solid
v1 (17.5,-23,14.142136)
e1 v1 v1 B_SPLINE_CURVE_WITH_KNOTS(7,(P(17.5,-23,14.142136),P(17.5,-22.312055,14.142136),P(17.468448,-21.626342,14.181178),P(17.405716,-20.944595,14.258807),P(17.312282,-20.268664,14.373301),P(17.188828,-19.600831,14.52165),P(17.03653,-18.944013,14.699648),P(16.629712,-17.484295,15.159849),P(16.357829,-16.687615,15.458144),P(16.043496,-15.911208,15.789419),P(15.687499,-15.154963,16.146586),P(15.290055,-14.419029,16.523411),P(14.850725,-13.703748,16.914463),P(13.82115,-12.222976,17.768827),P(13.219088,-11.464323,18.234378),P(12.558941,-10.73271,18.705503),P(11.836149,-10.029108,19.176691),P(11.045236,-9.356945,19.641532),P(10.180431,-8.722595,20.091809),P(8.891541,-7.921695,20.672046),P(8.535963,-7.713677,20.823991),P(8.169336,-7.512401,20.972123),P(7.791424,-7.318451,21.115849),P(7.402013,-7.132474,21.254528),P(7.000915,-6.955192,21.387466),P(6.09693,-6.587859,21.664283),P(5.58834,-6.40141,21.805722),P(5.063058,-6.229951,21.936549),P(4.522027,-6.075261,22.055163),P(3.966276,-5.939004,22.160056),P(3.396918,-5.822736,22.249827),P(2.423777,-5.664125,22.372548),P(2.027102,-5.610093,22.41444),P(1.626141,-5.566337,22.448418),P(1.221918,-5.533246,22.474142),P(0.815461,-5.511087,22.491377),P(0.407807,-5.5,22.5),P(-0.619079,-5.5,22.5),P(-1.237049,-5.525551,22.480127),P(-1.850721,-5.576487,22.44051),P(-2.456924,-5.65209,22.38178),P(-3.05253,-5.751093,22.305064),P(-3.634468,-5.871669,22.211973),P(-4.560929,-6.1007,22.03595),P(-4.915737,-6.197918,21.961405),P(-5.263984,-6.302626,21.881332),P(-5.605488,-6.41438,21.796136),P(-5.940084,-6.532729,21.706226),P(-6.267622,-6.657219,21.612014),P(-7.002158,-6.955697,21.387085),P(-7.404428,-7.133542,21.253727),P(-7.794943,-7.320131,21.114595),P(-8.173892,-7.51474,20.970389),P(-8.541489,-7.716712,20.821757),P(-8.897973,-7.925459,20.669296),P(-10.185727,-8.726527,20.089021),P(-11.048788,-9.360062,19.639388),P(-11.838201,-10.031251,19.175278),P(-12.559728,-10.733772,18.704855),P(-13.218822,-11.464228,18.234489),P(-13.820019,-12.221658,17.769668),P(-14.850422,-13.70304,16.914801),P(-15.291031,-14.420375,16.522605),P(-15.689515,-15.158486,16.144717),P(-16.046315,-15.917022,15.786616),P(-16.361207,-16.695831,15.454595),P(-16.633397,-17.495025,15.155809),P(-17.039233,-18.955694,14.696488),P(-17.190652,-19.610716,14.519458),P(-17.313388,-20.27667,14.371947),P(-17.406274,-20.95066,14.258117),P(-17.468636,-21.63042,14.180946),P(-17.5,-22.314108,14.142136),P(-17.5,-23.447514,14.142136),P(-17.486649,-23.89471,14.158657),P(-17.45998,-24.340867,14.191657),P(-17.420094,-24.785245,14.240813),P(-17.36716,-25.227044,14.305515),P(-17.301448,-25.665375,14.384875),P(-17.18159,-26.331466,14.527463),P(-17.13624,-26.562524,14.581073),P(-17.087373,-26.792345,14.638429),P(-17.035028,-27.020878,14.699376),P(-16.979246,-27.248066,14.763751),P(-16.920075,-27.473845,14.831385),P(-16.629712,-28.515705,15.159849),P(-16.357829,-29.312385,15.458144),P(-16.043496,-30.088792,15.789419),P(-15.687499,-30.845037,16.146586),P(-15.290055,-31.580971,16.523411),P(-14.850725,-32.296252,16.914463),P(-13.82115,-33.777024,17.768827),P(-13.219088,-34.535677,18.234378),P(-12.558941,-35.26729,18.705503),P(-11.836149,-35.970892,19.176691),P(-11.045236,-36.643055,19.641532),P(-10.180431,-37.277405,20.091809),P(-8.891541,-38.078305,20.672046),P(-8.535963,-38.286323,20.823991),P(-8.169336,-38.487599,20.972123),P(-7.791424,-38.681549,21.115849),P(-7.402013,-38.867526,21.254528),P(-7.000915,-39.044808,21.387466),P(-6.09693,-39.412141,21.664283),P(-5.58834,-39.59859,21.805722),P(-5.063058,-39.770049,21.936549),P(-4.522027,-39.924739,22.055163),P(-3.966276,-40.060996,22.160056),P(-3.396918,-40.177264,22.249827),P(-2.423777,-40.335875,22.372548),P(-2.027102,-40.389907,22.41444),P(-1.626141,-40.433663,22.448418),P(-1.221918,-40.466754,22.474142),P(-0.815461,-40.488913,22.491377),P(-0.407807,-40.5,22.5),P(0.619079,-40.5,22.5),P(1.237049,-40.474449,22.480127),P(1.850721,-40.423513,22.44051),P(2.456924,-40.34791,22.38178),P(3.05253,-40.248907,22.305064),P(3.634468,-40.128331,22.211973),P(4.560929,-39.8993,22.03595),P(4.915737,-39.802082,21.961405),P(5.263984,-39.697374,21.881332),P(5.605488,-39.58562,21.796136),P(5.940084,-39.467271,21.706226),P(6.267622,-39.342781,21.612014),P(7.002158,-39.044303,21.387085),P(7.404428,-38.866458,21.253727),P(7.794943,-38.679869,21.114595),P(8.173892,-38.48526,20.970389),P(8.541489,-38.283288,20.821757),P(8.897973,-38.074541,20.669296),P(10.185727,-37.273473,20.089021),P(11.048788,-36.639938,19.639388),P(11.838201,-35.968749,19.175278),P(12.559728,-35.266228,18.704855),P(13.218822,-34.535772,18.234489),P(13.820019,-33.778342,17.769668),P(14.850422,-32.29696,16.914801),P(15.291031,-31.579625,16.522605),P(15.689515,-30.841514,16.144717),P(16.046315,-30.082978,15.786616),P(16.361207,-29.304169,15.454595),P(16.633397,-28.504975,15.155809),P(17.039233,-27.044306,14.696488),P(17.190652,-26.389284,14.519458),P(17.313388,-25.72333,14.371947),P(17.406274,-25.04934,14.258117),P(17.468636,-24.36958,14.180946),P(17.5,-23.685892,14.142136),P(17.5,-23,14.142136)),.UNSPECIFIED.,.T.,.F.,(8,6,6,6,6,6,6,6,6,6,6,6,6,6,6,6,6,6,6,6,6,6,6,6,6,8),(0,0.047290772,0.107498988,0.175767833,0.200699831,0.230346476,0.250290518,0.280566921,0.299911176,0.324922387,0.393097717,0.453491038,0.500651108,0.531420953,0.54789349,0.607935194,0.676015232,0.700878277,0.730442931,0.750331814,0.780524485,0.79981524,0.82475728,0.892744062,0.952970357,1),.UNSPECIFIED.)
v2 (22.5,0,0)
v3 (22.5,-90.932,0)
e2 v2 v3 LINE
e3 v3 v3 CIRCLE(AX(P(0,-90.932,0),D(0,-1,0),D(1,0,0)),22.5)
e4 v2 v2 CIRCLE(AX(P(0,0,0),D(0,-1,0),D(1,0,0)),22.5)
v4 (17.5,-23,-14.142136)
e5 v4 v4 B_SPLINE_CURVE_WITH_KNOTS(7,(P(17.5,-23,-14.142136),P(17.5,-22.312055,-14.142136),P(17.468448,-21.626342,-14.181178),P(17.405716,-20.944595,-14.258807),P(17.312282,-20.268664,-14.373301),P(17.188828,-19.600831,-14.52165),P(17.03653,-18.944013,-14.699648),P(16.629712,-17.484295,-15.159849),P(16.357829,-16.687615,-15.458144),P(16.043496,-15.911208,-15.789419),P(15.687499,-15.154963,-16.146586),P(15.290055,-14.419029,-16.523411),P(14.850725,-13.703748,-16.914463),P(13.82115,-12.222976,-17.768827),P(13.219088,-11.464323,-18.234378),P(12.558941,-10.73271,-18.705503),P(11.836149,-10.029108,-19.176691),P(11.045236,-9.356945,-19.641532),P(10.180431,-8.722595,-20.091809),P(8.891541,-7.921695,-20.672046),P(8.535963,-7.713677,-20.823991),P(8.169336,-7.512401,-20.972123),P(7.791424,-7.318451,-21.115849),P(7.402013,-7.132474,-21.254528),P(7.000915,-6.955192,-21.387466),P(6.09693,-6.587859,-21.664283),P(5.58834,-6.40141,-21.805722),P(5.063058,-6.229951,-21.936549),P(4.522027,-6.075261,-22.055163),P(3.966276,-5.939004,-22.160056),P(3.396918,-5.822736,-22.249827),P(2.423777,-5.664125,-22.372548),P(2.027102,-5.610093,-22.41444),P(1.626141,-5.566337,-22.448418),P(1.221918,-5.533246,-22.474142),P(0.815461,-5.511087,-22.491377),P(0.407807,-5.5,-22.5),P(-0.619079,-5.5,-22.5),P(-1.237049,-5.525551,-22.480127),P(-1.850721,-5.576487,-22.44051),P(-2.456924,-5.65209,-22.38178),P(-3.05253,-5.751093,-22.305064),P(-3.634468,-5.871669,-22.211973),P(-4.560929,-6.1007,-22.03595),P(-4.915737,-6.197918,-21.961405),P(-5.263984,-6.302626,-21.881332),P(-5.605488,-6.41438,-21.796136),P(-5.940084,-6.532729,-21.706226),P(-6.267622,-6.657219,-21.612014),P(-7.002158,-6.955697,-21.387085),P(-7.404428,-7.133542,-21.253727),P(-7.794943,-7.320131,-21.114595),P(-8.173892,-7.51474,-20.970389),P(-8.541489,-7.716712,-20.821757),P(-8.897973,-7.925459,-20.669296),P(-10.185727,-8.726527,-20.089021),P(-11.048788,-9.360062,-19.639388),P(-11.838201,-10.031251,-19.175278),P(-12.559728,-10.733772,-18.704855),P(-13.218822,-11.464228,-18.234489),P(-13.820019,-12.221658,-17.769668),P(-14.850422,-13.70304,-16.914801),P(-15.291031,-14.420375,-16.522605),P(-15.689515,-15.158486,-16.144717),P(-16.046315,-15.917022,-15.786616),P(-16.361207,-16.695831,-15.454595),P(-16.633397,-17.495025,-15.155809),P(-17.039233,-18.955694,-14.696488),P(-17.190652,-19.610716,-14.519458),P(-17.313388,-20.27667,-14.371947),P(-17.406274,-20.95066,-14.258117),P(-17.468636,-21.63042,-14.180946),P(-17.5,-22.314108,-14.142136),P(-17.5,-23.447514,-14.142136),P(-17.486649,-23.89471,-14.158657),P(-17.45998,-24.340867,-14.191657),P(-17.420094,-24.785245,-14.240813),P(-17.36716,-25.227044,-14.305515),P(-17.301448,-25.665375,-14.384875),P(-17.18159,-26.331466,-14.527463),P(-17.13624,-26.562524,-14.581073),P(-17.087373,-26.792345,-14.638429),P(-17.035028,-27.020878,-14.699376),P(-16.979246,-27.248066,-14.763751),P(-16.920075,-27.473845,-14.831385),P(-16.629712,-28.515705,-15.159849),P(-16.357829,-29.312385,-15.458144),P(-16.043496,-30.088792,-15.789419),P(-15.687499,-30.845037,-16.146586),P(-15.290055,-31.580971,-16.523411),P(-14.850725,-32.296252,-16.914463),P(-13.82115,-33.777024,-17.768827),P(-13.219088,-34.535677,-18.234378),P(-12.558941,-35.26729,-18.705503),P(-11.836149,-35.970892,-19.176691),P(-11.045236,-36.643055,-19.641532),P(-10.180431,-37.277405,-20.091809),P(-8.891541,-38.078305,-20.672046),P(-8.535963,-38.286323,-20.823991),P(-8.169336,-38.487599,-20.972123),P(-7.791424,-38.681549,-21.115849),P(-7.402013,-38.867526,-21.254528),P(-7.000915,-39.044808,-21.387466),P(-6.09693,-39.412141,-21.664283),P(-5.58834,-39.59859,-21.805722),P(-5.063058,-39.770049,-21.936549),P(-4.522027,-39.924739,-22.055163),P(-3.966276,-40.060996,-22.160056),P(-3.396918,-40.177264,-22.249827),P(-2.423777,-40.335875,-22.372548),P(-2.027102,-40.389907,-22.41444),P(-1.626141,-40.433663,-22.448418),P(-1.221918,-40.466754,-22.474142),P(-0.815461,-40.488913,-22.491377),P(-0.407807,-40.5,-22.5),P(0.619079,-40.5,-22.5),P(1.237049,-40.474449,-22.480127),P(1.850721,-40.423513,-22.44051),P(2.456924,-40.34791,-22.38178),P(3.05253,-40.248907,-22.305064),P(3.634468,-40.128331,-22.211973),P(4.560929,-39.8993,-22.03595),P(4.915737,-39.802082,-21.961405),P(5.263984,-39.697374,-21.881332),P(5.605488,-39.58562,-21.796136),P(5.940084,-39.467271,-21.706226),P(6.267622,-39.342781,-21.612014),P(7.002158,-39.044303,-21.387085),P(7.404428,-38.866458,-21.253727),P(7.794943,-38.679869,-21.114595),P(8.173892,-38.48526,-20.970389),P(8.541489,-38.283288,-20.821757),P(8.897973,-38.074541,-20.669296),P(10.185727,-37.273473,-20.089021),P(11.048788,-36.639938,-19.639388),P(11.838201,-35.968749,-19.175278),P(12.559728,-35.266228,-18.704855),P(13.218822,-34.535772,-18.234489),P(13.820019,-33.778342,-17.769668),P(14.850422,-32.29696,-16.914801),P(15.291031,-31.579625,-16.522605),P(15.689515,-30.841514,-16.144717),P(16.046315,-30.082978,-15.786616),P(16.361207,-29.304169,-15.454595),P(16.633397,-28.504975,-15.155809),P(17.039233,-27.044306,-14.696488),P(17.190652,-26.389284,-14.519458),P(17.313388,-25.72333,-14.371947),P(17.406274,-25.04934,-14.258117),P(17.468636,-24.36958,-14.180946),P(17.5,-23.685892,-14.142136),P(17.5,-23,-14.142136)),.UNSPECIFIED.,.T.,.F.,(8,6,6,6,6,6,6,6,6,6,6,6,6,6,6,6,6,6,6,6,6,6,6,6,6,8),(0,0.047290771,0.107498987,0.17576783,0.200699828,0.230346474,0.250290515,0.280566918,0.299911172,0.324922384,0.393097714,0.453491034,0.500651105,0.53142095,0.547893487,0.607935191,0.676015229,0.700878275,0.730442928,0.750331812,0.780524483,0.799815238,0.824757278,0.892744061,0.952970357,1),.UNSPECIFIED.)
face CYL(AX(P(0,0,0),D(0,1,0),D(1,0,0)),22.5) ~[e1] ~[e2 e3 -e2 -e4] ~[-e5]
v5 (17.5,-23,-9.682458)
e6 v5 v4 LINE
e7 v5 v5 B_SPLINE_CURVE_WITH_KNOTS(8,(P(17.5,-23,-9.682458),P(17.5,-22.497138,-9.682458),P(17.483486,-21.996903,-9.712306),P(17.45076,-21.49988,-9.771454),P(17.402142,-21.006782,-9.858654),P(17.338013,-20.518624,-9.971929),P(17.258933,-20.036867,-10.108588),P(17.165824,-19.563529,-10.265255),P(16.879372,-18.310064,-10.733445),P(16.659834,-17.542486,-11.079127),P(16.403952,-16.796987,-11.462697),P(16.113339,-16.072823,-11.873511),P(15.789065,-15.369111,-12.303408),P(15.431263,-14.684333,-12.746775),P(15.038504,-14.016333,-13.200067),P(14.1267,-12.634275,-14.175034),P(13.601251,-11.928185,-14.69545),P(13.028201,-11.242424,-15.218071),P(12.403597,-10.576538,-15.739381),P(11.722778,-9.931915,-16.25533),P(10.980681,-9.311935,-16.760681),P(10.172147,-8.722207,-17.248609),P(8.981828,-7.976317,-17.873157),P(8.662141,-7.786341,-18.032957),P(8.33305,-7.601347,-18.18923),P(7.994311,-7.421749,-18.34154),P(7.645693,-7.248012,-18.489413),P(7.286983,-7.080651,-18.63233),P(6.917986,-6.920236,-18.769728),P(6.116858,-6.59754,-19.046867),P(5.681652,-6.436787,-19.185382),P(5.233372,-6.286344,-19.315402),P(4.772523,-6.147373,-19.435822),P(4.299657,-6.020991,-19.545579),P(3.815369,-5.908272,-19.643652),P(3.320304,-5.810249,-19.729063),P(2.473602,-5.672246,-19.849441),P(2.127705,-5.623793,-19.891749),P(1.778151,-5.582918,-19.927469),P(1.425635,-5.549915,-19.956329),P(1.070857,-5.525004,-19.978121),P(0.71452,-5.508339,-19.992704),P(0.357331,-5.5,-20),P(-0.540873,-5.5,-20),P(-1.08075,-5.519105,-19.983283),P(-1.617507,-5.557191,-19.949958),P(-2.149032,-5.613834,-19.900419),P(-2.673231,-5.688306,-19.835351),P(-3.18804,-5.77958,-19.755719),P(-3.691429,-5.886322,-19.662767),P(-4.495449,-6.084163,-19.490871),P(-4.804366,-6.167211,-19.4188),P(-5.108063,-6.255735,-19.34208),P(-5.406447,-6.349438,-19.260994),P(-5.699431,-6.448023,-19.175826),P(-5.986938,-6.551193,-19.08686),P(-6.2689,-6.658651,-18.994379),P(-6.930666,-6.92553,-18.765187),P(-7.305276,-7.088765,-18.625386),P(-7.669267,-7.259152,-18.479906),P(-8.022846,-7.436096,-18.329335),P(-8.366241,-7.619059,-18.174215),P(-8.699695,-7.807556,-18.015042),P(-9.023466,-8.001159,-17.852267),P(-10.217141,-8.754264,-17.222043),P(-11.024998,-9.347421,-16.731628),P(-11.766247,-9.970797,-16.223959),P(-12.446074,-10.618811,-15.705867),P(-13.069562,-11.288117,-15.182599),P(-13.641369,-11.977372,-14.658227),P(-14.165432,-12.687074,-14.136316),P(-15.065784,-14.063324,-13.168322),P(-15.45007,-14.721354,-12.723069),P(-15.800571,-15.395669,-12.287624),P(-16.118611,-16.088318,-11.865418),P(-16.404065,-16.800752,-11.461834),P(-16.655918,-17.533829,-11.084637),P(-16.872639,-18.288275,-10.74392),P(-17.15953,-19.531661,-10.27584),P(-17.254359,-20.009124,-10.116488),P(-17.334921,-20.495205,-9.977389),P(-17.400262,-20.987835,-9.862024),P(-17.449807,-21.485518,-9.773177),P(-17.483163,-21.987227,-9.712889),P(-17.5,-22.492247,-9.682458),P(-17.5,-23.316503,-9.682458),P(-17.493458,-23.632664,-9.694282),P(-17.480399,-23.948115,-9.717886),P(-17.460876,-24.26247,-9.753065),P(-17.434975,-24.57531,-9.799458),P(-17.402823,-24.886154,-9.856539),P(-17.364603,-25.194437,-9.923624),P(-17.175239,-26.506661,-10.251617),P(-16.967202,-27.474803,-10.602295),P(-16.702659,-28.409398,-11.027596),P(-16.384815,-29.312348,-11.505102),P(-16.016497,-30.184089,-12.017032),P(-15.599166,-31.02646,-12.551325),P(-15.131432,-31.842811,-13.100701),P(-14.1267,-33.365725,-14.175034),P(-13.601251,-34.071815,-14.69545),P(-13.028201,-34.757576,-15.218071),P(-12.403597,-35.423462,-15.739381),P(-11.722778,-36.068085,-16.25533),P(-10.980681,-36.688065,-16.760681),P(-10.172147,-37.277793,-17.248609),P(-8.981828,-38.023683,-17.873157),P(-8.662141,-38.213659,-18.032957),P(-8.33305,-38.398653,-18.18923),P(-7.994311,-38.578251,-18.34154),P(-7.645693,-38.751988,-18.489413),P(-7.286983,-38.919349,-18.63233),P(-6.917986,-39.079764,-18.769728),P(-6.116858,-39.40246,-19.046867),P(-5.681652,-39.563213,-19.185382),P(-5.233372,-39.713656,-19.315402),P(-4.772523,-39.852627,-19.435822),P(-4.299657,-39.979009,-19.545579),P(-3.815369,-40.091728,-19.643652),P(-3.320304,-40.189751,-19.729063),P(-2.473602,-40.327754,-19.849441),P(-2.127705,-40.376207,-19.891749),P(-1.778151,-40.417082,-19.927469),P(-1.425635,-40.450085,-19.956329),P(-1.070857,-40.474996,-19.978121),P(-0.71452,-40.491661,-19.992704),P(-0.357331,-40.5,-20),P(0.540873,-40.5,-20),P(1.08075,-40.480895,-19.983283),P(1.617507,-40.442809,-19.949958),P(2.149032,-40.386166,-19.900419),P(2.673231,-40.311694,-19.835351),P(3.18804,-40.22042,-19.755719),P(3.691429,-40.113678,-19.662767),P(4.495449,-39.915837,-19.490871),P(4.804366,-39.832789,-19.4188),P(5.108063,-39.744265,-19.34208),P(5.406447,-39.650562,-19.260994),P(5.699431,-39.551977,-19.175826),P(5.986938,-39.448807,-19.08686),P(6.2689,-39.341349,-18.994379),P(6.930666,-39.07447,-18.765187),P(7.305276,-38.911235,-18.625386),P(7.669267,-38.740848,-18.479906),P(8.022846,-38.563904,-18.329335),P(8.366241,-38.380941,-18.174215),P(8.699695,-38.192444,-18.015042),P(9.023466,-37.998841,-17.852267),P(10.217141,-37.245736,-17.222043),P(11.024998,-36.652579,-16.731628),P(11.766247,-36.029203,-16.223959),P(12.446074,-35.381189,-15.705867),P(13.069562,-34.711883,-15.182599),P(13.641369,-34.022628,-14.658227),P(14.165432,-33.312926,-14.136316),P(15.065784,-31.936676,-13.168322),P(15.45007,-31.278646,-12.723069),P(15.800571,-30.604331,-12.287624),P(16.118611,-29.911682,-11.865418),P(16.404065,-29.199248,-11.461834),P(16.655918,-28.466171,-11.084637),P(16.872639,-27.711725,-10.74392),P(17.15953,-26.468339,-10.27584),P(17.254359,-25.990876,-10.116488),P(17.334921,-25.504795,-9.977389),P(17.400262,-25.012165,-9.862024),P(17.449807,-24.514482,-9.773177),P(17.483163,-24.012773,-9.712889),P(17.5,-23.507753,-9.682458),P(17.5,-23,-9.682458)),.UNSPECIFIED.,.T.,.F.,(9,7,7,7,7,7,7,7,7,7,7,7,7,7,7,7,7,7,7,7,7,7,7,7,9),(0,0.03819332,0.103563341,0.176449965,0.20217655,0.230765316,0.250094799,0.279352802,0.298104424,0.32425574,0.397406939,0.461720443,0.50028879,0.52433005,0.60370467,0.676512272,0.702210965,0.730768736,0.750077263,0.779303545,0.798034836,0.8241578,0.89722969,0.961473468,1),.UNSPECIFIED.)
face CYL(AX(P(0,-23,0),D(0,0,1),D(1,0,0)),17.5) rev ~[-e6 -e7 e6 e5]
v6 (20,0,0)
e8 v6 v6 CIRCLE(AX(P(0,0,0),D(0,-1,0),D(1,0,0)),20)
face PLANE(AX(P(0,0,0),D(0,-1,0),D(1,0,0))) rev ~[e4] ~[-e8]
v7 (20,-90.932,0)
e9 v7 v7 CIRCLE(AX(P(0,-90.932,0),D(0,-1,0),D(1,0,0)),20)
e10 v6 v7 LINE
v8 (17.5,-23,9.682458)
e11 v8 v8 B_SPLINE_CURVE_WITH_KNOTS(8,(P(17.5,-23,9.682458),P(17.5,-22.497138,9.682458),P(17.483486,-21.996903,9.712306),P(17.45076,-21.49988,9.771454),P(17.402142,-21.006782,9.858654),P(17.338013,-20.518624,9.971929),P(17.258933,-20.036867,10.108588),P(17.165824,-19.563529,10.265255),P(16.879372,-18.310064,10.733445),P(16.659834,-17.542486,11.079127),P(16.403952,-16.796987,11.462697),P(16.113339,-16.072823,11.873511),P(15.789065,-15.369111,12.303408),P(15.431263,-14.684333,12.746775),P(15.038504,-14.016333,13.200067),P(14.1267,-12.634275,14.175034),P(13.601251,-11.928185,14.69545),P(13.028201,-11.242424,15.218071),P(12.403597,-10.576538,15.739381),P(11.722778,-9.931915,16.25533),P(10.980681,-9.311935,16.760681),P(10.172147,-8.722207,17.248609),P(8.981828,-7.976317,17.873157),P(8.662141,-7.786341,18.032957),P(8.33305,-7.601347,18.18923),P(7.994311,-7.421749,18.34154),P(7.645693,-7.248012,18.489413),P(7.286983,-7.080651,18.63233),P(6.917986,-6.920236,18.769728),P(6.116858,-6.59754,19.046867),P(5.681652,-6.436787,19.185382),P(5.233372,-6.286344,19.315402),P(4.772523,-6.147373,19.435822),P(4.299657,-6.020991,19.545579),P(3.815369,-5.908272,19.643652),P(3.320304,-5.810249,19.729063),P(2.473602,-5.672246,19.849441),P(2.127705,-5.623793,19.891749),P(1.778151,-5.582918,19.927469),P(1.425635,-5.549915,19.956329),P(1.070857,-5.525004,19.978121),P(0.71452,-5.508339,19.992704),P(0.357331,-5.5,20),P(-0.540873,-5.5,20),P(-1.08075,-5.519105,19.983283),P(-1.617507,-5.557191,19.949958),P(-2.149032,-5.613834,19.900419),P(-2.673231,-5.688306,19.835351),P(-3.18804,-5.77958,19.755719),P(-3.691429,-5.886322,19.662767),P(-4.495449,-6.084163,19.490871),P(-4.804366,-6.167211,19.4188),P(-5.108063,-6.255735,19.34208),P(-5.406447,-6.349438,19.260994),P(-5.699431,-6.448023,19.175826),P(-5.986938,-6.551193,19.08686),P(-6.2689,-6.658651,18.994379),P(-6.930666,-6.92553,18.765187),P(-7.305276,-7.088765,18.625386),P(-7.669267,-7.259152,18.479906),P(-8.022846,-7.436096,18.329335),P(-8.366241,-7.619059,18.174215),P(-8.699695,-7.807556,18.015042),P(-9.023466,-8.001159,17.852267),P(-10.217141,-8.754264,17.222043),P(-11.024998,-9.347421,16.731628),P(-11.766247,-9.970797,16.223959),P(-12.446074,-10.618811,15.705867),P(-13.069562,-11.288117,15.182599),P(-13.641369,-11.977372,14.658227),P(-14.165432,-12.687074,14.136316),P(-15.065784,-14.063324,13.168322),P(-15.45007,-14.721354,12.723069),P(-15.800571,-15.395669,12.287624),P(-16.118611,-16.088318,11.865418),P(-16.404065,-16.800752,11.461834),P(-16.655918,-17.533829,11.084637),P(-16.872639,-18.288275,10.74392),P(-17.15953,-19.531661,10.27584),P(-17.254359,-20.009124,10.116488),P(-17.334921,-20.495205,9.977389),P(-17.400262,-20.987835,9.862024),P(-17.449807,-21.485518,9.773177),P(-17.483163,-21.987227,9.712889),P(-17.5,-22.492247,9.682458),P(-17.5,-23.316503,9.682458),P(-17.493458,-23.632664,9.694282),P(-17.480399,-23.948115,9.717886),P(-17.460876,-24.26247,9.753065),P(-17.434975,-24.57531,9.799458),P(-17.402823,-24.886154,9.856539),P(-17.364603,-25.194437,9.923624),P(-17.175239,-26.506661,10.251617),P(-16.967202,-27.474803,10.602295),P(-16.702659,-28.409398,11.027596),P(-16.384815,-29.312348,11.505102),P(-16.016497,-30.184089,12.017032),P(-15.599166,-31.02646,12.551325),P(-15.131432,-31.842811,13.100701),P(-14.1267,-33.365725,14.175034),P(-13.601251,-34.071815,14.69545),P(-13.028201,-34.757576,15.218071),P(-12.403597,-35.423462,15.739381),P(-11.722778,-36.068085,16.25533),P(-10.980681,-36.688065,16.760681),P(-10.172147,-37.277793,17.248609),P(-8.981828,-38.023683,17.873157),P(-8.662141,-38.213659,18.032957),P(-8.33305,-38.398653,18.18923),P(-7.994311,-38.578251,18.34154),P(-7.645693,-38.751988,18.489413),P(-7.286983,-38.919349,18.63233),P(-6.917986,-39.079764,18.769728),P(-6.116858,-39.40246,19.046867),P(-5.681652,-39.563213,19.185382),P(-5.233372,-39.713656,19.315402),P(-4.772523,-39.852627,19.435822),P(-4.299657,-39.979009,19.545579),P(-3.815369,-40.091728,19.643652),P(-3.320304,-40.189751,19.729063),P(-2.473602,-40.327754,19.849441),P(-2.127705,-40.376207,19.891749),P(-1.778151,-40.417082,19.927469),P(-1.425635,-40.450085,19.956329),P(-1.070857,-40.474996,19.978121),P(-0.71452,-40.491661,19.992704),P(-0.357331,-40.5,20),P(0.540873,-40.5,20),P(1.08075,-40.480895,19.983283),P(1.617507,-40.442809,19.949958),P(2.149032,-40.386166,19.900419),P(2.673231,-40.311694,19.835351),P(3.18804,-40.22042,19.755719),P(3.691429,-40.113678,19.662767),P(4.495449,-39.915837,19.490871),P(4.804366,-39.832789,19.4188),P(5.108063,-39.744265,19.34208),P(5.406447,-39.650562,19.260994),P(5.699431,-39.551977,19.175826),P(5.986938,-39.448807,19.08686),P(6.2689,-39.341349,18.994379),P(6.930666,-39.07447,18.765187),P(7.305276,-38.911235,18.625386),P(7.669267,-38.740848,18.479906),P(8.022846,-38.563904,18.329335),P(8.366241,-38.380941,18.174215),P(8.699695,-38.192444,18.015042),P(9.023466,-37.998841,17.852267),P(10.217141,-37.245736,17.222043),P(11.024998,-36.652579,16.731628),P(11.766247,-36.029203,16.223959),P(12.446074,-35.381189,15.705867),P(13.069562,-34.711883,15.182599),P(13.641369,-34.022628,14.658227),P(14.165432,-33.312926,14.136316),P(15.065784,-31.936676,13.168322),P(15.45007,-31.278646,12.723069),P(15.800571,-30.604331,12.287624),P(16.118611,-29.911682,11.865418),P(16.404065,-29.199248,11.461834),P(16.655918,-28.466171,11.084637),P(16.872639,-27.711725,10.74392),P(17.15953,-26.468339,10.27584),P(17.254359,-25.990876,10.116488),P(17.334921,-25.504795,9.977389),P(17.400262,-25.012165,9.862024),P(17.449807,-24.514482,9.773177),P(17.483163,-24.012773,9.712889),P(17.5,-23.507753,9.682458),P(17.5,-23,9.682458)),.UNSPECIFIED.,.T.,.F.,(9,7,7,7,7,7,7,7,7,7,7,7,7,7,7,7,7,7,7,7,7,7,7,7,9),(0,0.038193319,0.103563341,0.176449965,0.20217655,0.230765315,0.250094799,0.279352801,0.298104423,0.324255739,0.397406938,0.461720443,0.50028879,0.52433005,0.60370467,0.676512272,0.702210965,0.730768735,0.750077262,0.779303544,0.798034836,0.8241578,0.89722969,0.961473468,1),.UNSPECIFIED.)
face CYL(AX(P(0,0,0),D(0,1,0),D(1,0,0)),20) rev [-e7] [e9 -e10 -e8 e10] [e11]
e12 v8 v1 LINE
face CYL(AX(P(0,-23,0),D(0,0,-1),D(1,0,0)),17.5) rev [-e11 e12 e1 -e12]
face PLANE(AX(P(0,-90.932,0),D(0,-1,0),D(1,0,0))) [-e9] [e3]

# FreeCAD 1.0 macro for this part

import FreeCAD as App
import Part
import Sketcher

V = App.Vector
Q = App.Units.Quantity

doc = App.newDocument("Part")
body = doc.addObject("PartDesign::Body", "Body")

sketch1 = body.newObject("Sketcher::SketchObject", "Sketch")
sketch1.AttachmentSupport = (doc.getObject("XZ_Plane"), [""])
sketch1.MapMode = "FlatFace"
sketch1.addGeometry([
    Part.Circle(V(0, 0, 0), V(0, 0, 1), 22),
    Part.Circle(V(0, 0, 0), V(0, 0, 1), 20),
], False)
sketch1.addConstraint([
    Sketcher.Constraint("Coincident", 0, 3, -1, 1),
    Sketcher.Constraint("Coincident", 1, 3, -1, 1),
    Sketcher.Constraint("Diameter", 0, Q("45 mm")),
    Sketcher.Constraint("Diameter", 1, Q("40 mm")),
])
pad1 = body.newObject("PartDesign::Pad", "Pad")
pad1.Profile = sketch1
pad1.Length = 90.932

sketch2 = body.newObject("Sketcher::SketchObject", "Sketch001")
sketch2.AttachmentSupport = (doc.getObject("XY_Plane"), [""])
sketch2.MapMode = "FlatFace"
sketch2.addGeometry(Part.Circle(V(0, -23, 0), V(0, 0, 1), 18), False)
sketch2.addConstraint([
    Sketcher.Constraint("PointOnObject", 0, 3, -2),
    Sketcher.Constraint("Diameter", 0, Q("35 mm")),
    Sketcher.Constraint("DistanceY", 0, 3, -1, 1, Q("23 mm")),
])
pocket1 = body.newObject("PartDesign::Pocket", "Pocket")
pocket1.Profile = sketch2
pocket1.Type = "ThroughAll"
pocket1.Midplane = True

doc.recompute()
